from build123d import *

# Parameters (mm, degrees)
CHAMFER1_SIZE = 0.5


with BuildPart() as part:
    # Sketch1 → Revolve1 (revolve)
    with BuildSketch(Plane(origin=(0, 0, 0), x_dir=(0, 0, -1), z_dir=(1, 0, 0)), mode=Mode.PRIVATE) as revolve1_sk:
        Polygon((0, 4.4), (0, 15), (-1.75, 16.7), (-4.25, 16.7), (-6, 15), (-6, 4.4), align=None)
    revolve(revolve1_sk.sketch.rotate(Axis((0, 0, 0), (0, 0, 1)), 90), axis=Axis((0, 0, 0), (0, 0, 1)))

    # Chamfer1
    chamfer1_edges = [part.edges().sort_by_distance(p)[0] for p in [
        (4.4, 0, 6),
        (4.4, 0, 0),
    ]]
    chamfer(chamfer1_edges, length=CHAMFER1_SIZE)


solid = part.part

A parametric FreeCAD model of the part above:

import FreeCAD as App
import Part
import Sketcher
from FreeCAD import Vector
Q = App.Units.Quantity


def edges_at(feature, points):
    """Names of the edges that pass closest to the given points."""
    edges = feature.Shape.Edges
    near = lambda p: min(range(len(edges)), key=lambda i: edges[i].distToShape(Part.Vertex(*p))[0])
    return sorted({f"Edge{near(p) + 1}" for p in points})

doc = App.newDocument("Part")
body = doc.addObject("PartDesign::Body", "Body")

# Sketch on YZ plane
sketch1 = body.newObject("Sketcher::SketchObject", "Sketch")
sketch1.AttachmentSupport = (doc.getObject("YZ_Plane"), [""])
sketch1.MapMode = "FlatFace"
sketch1.addGeometry([
    Part.LineSegment(Vector(4.4, 0, 0), Vector(15, 0, 0)),  # 0
    Part.LineSegment(Vector(15, 0, 0), Vector(16.7, 1.75, 0)),  # 1
    Part.LineSegment(Vector(16.7, 1.75, 0), Vector(16.7, 4.25, 0)),  # 2
    Part.LineSegment(Vector(16.7, 4.25, 0), Vector(15, 6, 0)),  # 3
    Part.LineSegment(Vector(15, 6, 0), Vector(4.4, 6, 0)),  # 4
    Part.LineSegment(Vector(4.4, 6, 0), Vector(4.4, 0, 0)),  # 5
], False)
sketch1.addConstraint([
    Sketcher.Constraint("Coincident", 0, 2, 1, 1),
    Sketcher.Constraint("Coincident", 1, 2, 2, 1),
    Sketcher.Constraint("Coincident", 2, 2, 3, 1),
    Sketcher.Constraint("Coincident", 3, 2, 4, 1),
    Sketcher.Constraint("Coincident", 4, 2, 5, 1),
    Sketcher.Constraint("Coincident", 5, 2, 0, 1),
    Sketcher.Constraint("Horizontal", 0),
    Sketcher.Constraint("Vertical", 2),
    Sketcher.Constraint("Horizontal", 4),
    Sketcher.Constraint("Vertical", 5),
    Sketcher.Constraint("PointOnObject", 0, 2, -1),
    Sketcher.Constraint("Vertical", 0, 2, 3, 2),
    Sketcher.Constraint("Equal", 1, 3),
    Sketcher.Constraint("DistanceY", 5, 2, 5, 1, Q("6 mm")),
    Sketcher.Constraint("DistanceX", 0, 1, 0, 2, Q("10.6 mm")),
    Sketcher.Constraint("DistanceY", 2, 1, 2, 2, Q("2.5 mm")),
    Sketcher.Constraint("DistanceX", -1, 1, 0, 2, Q("15 mm")),
    Sketcher.Constraint("DistanceX", -1, 1, 1, 2, Q("16.7 mm")),
])
revolution = body.newObject("PartDesign::Revolution", "Revolution")
revolution.Profile = sketch1
revolution.ReferenceAxis = (sketch1, ["V_Axis"])
revolution.Angle = 360
doc.recompute()

chamfer = body.newObject("PartDesign::Chamfer", "Chamfer")
chamfer.Base = (revolution, edges_at(revolution, [(4.4, 0, 6), (4.4, 0, 0)]))
chamfer.Size = 0.5

doc.recompute()
